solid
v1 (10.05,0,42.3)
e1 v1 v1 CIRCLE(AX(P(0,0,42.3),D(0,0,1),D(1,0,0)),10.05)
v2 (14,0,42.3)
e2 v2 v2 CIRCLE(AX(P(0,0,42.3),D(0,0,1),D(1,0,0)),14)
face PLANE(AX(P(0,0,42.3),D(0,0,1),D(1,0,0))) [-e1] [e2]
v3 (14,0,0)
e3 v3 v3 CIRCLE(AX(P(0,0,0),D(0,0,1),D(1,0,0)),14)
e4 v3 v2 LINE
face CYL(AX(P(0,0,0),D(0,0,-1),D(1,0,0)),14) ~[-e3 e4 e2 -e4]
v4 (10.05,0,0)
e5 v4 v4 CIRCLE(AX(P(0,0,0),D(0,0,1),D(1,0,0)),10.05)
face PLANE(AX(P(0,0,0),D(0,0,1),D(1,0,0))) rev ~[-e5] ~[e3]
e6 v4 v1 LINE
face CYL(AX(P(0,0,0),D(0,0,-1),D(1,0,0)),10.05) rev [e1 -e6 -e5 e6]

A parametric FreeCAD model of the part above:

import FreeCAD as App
import Part
import Sketcher
from FreeCAD import Vector
Q = App.Units.Quantity

doc = App.newDocument("Part")
body = doc.addObject("PartDesign::Body", "Body")

# Sketch on XY plane
sketch1 = body.newObject("Sketcher::SketchObject", "Sketch")
sketch1.AttachmentSupport = (doc.getObject("XY_Plane"), [""])
sketch1.MapMode = "FlatFace"
sketch1.addGeometry(Part.Circle(Vector(0, 0, 0), Vector(0, 0, 1), 14), False)
sketch1.addGeometry(Part.Circle(Vector(0, 0, 0), Vector(0, 0, 1), 10), False)
sketch1.addConstraint(Sketcher.Constraint("Coincident", 0, 3, -1, 1))
sketch1.addConstraint(Sketcher.Constraint("Coincident", 1, 3, -1, 1))
sketch1.addConstraint(Sketcher.Constraint("Diameter", 0, Q("28 mm")))
sketch1.addConstraint(Sketcher.Constraint("Diameter", 1, Q("20.1 mm")))
pad1 = body.newObject("PartDesign::Pad", "Pad")
pad1.Profile = sketch1
pad1.Length = 42.3

doc.recompute()
